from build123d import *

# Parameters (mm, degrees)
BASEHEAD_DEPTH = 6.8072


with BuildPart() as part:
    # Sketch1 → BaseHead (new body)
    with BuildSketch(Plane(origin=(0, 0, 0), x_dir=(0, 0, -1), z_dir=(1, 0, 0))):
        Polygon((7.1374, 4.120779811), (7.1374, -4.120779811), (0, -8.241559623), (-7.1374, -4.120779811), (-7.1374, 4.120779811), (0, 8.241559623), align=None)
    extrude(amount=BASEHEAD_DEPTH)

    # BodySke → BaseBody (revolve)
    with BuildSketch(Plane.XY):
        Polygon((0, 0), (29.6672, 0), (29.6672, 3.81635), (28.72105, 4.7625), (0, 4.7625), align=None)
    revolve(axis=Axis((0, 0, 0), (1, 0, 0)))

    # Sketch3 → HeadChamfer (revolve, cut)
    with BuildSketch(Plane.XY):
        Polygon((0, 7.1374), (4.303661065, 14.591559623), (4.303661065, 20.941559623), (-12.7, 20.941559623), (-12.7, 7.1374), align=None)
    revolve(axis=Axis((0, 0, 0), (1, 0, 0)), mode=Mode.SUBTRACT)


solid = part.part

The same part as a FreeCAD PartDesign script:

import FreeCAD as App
import Part
import Sketcher
from FreeCAD import Vector
Q = App.Units.Quantity


def add_polygon(sketch, points):
    """Adds a closed chain of lines whose ends are joined by coincident constraints."""
    first, n = sketch.GeometryCount, len(points)
    for a, b in zip(points, points[1:] + points[:1]):
        sketch.addGeometry(Part.LineSegment(App.Vector(*a, 0), App.Vector(*b, 0)), False)
    for i in range(n):
        sketch.addConstraint(Sketcher.Constraint("Coincident", first + i, 2, first + (i + 1) % n, 1))

doc = App.newDocument("Part")
body = doc.addObject("PartDesign::Body", "Body")

sketch1 = body.newObject("Sketcher::SketchObject", "Sketch")
sketch1.AttachmentSupport = (doc.getObject("YZ_Plane"), [""])
sketch1.MapMode = "FlatFace"
add_polygon(sketch1, [(-4, -7), (4, -7), (8, 0), (4, 7), (-4, 7), (-8, 0)])
sketch1.addConstraint(Sketcher.Constraint("Horizontal", 0))
sketch1.addConstraint(Sketcher.Constraint("Horizontal", 3))
sketch1.addConstraint(Sketcher.Constraint("Symmetric", 0, 2, 3, 2, -1, 1))
sketch1.addConstraint(Sketcher.Constraint("Symmetric", 1, 2, 4, 2, -1, 1))
sketch1.addConstraint(Sketcher.Constraint("PointOnObject", 1, 2, -1))
sketch1.addConstraint(Sketcher.Constraint("Parallel", 2, 5))
sketch1.addConstraint(Sketcher.Constraint("Vertical", 0, 2, 2, 2))
sketch1.addConstraint(Sketcher.Constraint("Angle", 1, Q("60 deg")))
sketch1.addConstraint(Sketcher.Constraint("DistanceY", 0, 2, -1, 1, Q("0.281 in")))
sketch1.addConstraint(Sketcher.Constraint("DistanceX", 0, 1, 0, 2, 8.24156))
pad1 = body.newObject("PartDesign::Pad", "Pad")
pad1.Profile = sketch1
pad1.Length = Q("0.268 in")

sketch2 = body.newObject("Sketcher::SketchObject", "Sketch001")
sketch2.AttachmentSupport = (doc.getObject("XY_Plane"), [""])
sketch2.MapMode = "FlatFace"
add_polygon(sketch2, [(0, 0), (29.7, 0), (29.7, 3.8), (28.7, 4.8), (0, 4.8)])
sketch2.addConstraint(Sketcher.Constraint("Horizontal", 0))
sketch2.addConstraint(Sketcher.Constraint("Vertical", 1))
sketch2.addConstraint(Sketcher.Constraint("Horizontal", 3))
sketch2.addConstraint(Sketcher.Constraint("Vertical", 4))
sketch2.addConstraint(Sketcher.Constraint("Coincident", 4, 2, -1, 1))
sketch2.addConstraint(Sketcher.Constraint("Angle", 2, Q("135 deg")))
sketch2.addConstraint(Sketcher.Constraint("DistanceX", 0, 1, 0, 2, Q("1.168 in")))
sketch2.addConstraint(Sketcher.Constraint("DistanceY", 4, 2, 4, 1, Q("0.1875 in")))
sketch2.addConstraint(Sketcher.Constraint("DistanceX", 3, 2, 3, 1, 28.72105))
revolution = body.newObject("PartDesign::Revolution", "Revolution")
revolution.Profile = sketch2
revolution.ReferenceAxis = (sketch2, ["H_Axis"])
revolution.Angle = 360

sketch3 = body.newObject("Sketcher::SketchObject", "Sketch002")
sketch3.AttachmentSupport = (doc.getObject("XY_Plane"), [""])
sketch3.MapMode = "FlatFace"
add_polygon(sketch3, [(0, 7), (4, 15), (4, 21), (-13, 21), (-13, 7)])
sketch3.addConstraint(Sketcher.Constraint("Vertical", 1))
sketch3.addConstraint(Sketcher.Constraint("Horizontal", 2))
sketch3.addConstraint(Sketcher.Constraint("Vertical", 3))
sketch3.addConstraint(Sketcher.Constraint("Horizontal", 4))
sketch3.addConstraint(Sketcher.Constraint("PointOnObject", 4, 2, -2))
sketch3.addConstraint(Sketcher.Constraint("DistanceX", 4, 1, 4, 2, Q("0.5 in")))
sketch3.addConstraint(Sketcher.Constraint("Angle", 0, Q("60 deg")))
sketch3.addConstraint(Sketcher.Constraint("DistanceY", 1, 1, 1, 2, Q("0.25 in")))
sketch3.addConstraint(Sketcher.Constraint("DistanceY", -1, 1, 3, 2, Q("0.281 in")))
sketch3.addConstraint(Sketcher.Constraint("DistanceX", 2, 2, 2, 1, 17.003661))
groove = body.newObject("PartDesign::Groove", "Groove")
groove.Profile = sketch3
groove.ReferenceAxis = (sketch3, ["H_Axis"])
groove.Angle = 360

doc.recompute()
